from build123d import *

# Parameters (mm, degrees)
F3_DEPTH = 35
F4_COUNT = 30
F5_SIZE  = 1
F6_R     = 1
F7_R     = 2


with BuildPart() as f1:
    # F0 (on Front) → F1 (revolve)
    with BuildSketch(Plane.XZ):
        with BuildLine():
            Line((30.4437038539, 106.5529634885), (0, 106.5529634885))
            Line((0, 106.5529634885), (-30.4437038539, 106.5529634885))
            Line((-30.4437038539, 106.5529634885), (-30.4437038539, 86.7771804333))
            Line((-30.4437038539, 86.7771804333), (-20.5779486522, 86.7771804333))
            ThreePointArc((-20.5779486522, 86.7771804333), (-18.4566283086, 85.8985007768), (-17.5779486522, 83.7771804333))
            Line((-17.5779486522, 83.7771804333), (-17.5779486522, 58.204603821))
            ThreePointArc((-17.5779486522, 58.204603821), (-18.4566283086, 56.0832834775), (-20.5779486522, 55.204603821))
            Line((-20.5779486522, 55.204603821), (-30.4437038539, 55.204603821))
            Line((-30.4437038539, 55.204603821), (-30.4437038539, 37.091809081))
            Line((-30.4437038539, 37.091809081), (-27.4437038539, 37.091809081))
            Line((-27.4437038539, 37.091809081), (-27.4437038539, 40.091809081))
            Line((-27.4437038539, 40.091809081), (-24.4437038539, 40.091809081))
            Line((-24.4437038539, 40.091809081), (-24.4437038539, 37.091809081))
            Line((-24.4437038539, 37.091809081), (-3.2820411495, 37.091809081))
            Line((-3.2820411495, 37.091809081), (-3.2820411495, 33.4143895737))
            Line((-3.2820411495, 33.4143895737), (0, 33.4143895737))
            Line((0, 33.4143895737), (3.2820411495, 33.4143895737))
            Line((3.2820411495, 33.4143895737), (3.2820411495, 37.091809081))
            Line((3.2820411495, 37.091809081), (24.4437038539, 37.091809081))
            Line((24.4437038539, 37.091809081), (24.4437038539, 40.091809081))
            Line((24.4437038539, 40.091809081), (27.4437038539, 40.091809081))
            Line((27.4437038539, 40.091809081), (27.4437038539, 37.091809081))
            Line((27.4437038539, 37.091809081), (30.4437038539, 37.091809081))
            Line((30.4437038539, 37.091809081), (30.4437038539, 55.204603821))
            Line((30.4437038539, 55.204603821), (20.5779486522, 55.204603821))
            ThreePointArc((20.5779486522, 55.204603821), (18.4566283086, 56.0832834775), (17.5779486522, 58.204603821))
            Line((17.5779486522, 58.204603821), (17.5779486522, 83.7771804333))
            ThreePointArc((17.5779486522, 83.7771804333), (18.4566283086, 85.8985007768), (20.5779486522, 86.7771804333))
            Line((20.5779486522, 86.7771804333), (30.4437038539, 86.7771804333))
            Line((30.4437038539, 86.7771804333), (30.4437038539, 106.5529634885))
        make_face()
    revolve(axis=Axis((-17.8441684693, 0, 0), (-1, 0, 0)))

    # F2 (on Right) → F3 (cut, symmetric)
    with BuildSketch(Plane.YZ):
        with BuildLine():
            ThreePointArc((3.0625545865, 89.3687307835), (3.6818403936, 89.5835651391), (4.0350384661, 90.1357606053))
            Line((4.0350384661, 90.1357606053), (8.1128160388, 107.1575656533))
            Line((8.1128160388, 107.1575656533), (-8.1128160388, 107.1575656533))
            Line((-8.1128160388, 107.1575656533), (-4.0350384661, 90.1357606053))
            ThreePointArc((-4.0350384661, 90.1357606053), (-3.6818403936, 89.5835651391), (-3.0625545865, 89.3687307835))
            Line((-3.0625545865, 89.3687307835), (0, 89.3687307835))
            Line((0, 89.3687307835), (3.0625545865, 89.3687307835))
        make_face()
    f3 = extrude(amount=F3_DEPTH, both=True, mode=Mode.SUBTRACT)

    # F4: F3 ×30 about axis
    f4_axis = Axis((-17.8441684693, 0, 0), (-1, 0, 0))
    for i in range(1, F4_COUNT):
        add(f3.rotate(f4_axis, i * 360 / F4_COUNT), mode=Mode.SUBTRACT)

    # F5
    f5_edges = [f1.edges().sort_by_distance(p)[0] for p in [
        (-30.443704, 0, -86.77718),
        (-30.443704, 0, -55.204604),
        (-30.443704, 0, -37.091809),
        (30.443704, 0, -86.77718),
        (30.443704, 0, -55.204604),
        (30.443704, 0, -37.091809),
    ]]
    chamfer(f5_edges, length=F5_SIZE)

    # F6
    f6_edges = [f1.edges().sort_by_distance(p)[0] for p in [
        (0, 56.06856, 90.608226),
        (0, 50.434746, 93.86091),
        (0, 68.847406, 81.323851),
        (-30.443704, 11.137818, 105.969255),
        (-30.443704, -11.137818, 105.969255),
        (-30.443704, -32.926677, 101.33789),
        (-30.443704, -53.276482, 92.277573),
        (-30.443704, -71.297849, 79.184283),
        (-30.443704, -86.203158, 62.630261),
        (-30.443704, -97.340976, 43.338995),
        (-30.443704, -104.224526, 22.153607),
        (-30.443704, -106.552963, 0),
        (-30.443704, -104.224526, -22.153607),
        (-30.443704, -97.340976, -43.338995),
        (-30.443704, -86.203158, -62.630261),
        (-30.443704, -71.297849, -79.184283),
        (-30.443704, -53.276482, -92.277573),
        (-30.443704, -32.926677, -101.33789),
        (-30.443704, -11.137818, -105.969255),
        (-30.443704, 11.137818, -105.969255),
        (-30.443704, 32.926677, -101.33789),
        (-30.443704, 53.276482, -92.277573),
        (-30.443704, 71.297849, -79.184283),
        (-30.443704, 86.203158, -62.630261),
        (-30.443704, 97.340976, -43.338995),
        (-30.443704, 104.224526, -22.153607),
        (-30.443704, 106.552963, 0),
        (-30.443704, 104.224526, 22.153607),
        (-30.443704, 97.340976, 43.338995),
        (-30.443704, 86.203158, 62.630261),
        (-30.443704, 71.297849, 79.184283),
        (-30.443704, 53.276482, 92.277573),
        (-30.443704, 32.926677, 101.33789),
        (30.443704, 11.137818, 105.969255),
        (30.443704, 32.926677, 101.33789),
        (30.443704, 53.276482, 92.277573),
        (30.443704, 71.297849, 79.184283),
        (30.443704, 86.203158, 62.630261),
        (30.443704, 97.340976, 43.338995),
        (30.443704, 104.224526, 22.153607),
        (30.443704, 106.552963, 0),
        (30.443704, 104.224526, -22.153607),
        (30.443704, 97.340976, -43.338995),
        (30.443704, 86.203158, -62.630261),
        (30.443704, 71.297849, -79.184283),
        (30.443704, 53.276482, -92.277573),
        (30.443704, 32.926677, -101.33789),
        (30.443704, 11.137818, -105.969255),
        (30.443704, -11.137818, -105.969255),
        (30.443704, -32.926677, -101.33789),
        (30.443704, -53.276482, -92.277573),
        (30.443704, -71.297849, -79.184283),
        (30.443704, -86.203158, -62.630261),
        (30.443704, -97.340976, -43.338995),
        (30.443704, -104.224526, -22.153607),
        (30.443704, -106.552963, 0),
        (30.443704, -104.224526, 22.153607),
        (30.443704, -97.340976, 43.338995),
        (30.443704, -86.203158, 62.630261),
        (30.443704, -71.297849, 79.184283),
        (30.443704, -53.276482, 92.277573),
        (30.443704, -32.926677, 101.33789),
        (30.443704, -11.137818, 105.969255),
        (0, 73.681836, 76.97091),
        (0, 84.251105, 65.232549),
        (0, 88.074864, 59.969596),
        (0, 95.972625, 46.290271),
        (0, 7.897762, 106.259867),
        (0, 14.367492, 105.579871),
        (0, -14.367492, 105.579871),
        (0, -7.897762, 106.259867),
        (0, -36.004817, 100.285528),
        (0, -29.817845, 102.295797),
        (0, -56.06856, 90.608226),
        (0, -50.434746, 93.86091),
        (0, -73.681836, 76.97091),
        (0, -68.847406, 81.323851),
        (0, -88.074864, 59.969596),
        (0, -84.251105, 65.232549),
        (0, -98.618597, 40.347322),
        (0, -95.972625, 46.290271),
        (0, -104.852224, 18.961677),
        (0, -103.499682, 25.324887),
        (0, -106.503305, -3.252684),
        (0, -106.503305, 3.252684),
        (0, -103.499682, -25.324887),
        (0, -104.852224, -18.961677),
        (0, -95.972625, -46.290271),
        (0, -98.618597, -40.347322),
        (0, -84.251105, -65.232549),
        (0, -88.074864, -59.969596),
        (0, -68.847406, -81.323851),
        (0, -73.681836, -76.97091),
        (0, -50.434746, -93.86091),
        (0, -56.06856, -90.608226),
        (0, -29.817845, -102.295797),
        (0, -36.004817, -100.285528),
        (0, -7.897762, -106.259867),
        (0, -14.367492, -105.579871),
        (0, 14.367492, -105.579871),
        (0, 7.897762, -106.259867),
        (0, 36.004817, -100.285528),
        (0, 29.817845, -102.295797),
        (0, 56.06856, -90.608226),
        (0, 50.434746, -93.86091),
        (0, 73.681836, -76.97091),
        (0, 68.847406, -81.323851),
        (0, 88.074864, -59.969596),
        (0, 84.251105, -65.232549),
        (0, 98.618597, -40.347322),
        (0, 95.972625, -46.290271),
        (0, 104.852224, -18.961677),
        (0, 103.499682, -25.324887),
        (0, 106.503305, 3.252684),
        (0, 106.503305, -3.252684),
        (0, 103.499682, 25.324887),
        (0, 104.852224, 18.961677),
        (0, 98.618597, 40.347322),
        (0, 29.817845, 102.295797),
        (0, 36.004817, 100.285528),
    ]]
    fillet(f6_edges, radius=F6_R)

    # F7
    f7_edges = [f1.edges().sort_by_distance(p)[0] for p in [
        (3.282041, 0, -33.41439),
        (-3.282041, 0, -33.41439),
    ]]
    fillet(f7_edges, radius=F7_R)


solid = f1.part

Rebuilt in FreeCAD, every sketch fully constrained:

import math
import FreeCAD as App
import Part
import Sketcher
from FreeCAD import Vector
Q = App.Units.Quantity


def edges_at(feature, points):
    """Names of the edges that pass closest to the given points."""
    edges = feature.Shape.Edges
    near = lambda p: min(range(len(edges)), key=lambda i: edges[i].distToShape(Part.Vertex(*p))[0])
    return sorted({f"Edge{near(p) + 1}" for p in points})

doc = App.newDocument("Part")
body = doc.addObject("PartDesign::Body", "Body")

# Sketch on XZ plane
sketch1 = body.newObject("Sketcher::SketchObject", "Sketch")
sketch1.AttachmentSupport = (doc.getObject("XZ_Plane"), [""])
sketch1.MapMode = "FlatFace"
sketch1.addGeometry([
    Part.LineSegment(Vector(30.4, 106.6, 0), Vector(-30.4, 106.6, 0)),  # 0
    Part.LineSegment(Vector(-30.4, 106.6, 0), Vector(-30.4, 86.8, 0)),  # 1
    Part.LineSegment(Vector(-30.4, 86.8, 0), Vector(-20.6, 86.8, 0)),  # 2
    Part.ArcOfCircle(Part.Circle(Vector(-20.6, 83.8, 0), Vector(0, 0, 1), 3), math.radians(0), math.radians(90)),  # 3
    Part.LineSegment(Vector(-17.6, 83.8, 0), Vector(-17.6, 58.2, 0)),  # 4
    Part.ArcOfCircle(Part.Circle(Vector(-20.6, 58.2, 0), Vector(0, 0, 1), 3), math.radians(-90), math.radians(0)),  # 5
    Part.LineSegment(Vector(-20.6, 55.2, 0), Vector(-30.4, 55.2, 0)),  # 6
    Part.LineSegment(Vector(-30.4, 55.2, 0), Vector(-30.4, 37.1, 0)),  # 7
    Part.LineSegment(Vector(-30.4, 37.1, 0), Vector(-27.4, 37.1, 0)),  # 8
    Part.LineSegment(Vector(-27.4, 37.1, 0), Vector(-27.4, 40.1, 0)),  # 9
    Part.LineSegment(Vector(-27.4, 40.1, 0), Vector(-24.4, 40.1, 0)),  # 10
    Part.LineSegment(Vector(-24.4, 40.1, 0), Vector(-24.4, 37.1, 0)),  # 11
    Part.LineSegment(Vector(-24.4, 37.1, 0), Vector(-3.3, 37.1, 0)),  # 12
    Part.LineSegment(Vector(-3.3, 37.1, 0), Vector(-3.3, 33.4, 0)),  # 13
    Part.LineSegment(Vector(-3.3, 33.4, 0), Vector(3.3, 33.4, 0)),  # 14
    Part.LineSegment(Vector(3.3, 33.4, 0), Vector(3.3, 37.1, 0)),  # 15
    Part.LineSegment(Vector(3.3, 37.1, 0), Vector(24.4, 37.1, 0)),  # 16
    Part.LineSegment(Vector(24.4, 37.1, 0), Vector(24.4, 40.1, 0)),  # 17
    Part.LineSegment(Vector(24.4, 40.1, 0), Vector(27.4, 40.1, 0)),  # 18
    Part.LineSegment(Vector(27.4, 40.1, 0), Vector(27.4, 37.1, 0)),  # 19
    Part.LineSegment(Vector(27.4, 37.1, 0), Vector(30.4, 37.1, 0)),  # 20
    Part.LineSegment(Vector(30.4, 37.1, 0), Vector(30.4, 55.2, 0)),  # 21
    Part.LineSegment(Vector(30.4, 55.2, 0), Vector(20.6, 55.2, 0)),  # 22
    Part.ArcOfCircle(Part.Circle(Vector(20.6, 58.2, 0), Vector(0, 0, 1), 3), math.radians(180), math.radians(270)),  # 23
    Part.LineSegment(Vector(17.6, 58.2, 0), Vector(17.6, 83.8, 0)),  # 24
    Part.ArcOfCircle(Part.Circle(Vector(20.6, 83.8, 0), Vector(0, 0, 1), 3), math.radians(90), math.radians(180)),  # 25
    Part.LineSegment(Vector(20.6, 86.8, 0), Vector(30.4, 86.8, 0)),  # 26
    Part.LineSegment(Vector(30.4, 86.8, 0), Vector(30.4, 106.6, 0)),  # 27
], False)
sketch1.addConstraint([
    Sketcher.Constraint("Coincident", 0, 2, 1, 1),
    Sketcher.Constraint("Coincident", 1, 2, 2, 1),
    Sketcher.Constraint("Tangent", 2, 2, 3, 2),
    Sketcher.Constraint("Tangent", 3, 1, 4, 1),
    Sketcher.Constraint("Tangent", 4, 2, 5, 2),
    Sketcher.Constraint("Tangent", 5, 1, 6, 1),
    Sketcher.Constraint("Coincident", 6, 2, 7, 1),
    Sketcher.Constraint("Coincident", 7, 2, 8, 1),
    Sketcher.Constraint("Coincident", 8, 2, 9, 1),
    Sketcher.Constraint("Coincident", 9, 2, 10, 1),
    Sketcher.Constraint("Coincident", 10, 2, 11, 1),
    Sketcher.Constraint("Coincident", 11, 2, 12, 1),
    Sketcher.Constraint("Coincident", 12, 2, 13, 1),
    Sketcher.Constraint("Coincident", 13, 2, 14, 1),
    Sketcher.Constraint("Coincident", 14, 2, 15, 1),
    Sketcher.Constraint("Coincident", 15, 2, 16, 1),
    Sketcher.Constraint("Coincident", 16, 2, 17, 1),
    Sketcher.Constraint("Coincident", 17, 2, 18, 1),
    Sketcher.Constraint("Coincident", 18, 2, 19, 1),
    Sketcher.Constraint("Coincident", 19, 2, 20, 1),
    Sketcher.Constraint("Coincident", 20, 2, 21, 1),
    Sketcher.Constraint("Coincident", 21, 2, 22, 1),
    Sketcher.Constraint("Tangent", 22, 2, 23, 2),
    Sketcher.Constraint("Tangent", 23, 1, 24, 1),
    Sketcher.Constraint("Tangent", 24, 2, 25, 2),
    Sketcher.Constraint("Tangent", 25, 1, 26, 1),
    Sketcher.Constraint("Coincident", 26, 2, 27, 1),
    Sketcher.Constraint("Coincident", 27, 2, 0, 1),
    Sketcher.Constraint("Horizontal", 0),
    Sketcher.Constraint("Vertical", 1),
    Sketcher.Constraint("Horizontal", 2),
    Sketcher.Constraint("Vertical", 4),
    Sketcher.Constraint("Horizontal", 6),
    Sketcher.Constraint("Vertical", 7),
    Sketcher.Constraint("Horizontal", 8),
    Sketcher.Constraint("Vertical", 9),
    Sketcher.Constraint("Horizontal", 10),
    Sketcher.Constraint("Vertical", 11),
    Sketcher.Constraint("Horizontal", 12),
    Sketcher.Constraint("Vertical", 13),
    Sketcher.Constraint("Horizontal", 14),
    Sketcher.Constraint("Vertical", 15),
    Sketcher.Constraint("Horizontal", 16),
    Sketcher.Constraint("Vertical", 17),
    Sketcher.Constraint("Horizontal", 18),
    Sketcher.Constraint("Vertical", 19),
    Sketcher.Constraint("Horizontal", 20),
    Sketcher.Constraint("Vertical", 21),
    Sketcher.Constraint("Horizontal", 22),
    Sketcher.Constraint("Vertical", 24),
    Sketcher.Constraint("Horizontal", 26),
    Sketcher.Constraint("Vertical", 27),
    Sketcher.Constraint("Equal", 3, 5),
    Sketcher.Constraint("Equal", 5, 23),
    Sketcher.Constraint("Equal", 23, 25),
    Sketcher.Constraint("Symmetric", 5, 3, 23, 3, -2),
    Sketcher.Constraint("Symmetric", 12, 2, 15, 2, -2),
    Sketcher.Constraint("Symmetric", 10, 2, 17, 2, -2),
    Sketcher.Constraint("Symmetric", 8, 2, 19, 2, -2),
    Sketcher.Constraint("Symmetric", 1, 2, 26, 2, -2),
    Sketcher.Constraint("Horizontal", 8, 2, 11, 2),
    Sketcher.Constraint("Vertical", 1, 2, 6, 2),
    Sketcher.Constraint("Vertical", 21, 2, 26, 2),
    Sketcher.Constraint("Equal", 8, 10),
    Sketcher.Constraint("Equal", 20, 9),
    Sketcher.Constraint("Radius", 3, Q("3 mm")),
    Sketcher.Constraint("DistanceX", 8, 1, 8, 2, Q("3 mm")),
    Sketcher.Constraint("DistanceY", 13, 2, 13, 1, Q("3.67742 mm")),
    Sketcher.Constraint("DistanceX", 0, 2, 0, 1, Q("60.887408 mm")),
    Sketcher.Constraint("DistanceX", 2, 1, 2, 2, Q("9.865755 mm")),
    Sketcher.Constraint("DistanceX", 12, 1, 12, 2, Q("21.161663 mm")),
    Sketcher.Constraint("DistanceY", 1, 2, 1, 1, Q("19.775783 mm")),
    Sketcher.Constraint("DistanceY", 4, 2, 4, 1, Q("25.572577 mm")),
    Sketcher.Constraint("DistanceY", 7, 2, 7, 1, Q("18.112795 mm")),
    Sketcher.Constraint("DistanceY", -1, 1, 3, 3, Q("83.77718 mm")),
])
revolution = body.newObject("PartDesign::Revolution", "Revolution")
revolution.Profile = sketch1
revolution.ReferenceAxis = (sketch1, ["H_Axis"])
revolution.Angle = 360

# Sketch on YZ plane
sketch2 = body.newObject("Sketcher::SketchObject", "Sketch001")
sketch2.AttachmentSupport = (doc.getObject("YZ_Plane"), [""])
sketch2.MapMode = "FlatFace"
sketch2.addGeometry([
    Part.ArcOfCircle(Part.Circle(Vector(3.1, 90.4, 0), Vector(0, 0, 1), 1), math.radians(-90), math.radians(-13)),  # 0
    Part.LineSegment(Vector(4, 90.1, 0), Vector(8.1, 107.2, 0)),  # 1
    Part.LineSegment(Vector(8.1, 107.2, 0), Vector(-8.1, 107.2, 0)),  # 2
    Part.LineSegment(Vector(-8.1, 107.2, 0), Vector(-4, 90.1, 0)),  # 3
    Part.ArcOfCircle(Part.Circle(Vector(-3.1, 90.4, 0), Vector(0, 0, 1), 1), math.radians(-167), math.radians(-90)),  # 4
    Part.LineSegment(Vector(-3.1, 89.4, 0), Vector(3.1, 89.4, 0)),  # 5
], False)
sketch2.addConstraint([
    Sketcher.Constraint("Tangent", 0, 2, 1, 1),
    Sketcher.Constraint("Coincident", 1, 2, 2, 1),
    Sketcher.Constraint("Coincident", 2, 2, 3, 1),
    Sketcher.Constraint("Tangent", 3, 2, 4, 1),
    Sketcher.Constraint("Tangent", 4, 2, 5, 1),
    Sketcher.Constraint("Tangent", 5, 2, 0, 1),
    Sketcher.Constraint("Horizontal", 2),
    Sketcher.Constraint("Horizontal", 5),
    Sketcher.Constraint("Equal", 0, 4),
    Sketcher.Constraint("Symmetric", 0, 2, 3, 2, -2),
    Sketcher.Constraint("Radius", 0, Q("1 mm")),
    Sketcher.Constraint("DistanceX", 5, 1, 5, 2, Q("6.125109 mm")),
    Sketcher.Constraint("Distance", 1, Q("17.503432 mm")),
    Sketcher.Constraint("DistanceX", 2, 2, 2, 1, Q("16.225632 mm")),
    Sketcher.Constraint("DistanceY", -1, 1, 0, 3, Q("90.368731 mm")),
])
pocket1 = body.newObject("PartDesign::Pocket", "Pocket")
pocket1.Profile = sketch2
pocket1.Length = 70
pocket1.Midplane = True
doc.recompute()

polarpattern = body.newObject("PartDesign::PolarPattern", "PolarPattern")
polarpattern.Originals = [pocket1]
polarpattern.Axis = (doc.getObject("X_Axis"), [""])
polarpattern.Angle = 360
polarpattern.Occurrences = 30
body.Tip = polarpattern
doc.recompute()

chamfer = body.newObject("PartDesign::Chamfer", "Chamfer")
chamfer.Base = (polarpattern, edges_at(polarpattern, [
    (-30.444, 0, -86.777),
    (-30.444, 0, -55.205),
    (-30.444, 0, -37.092),
    (30.444, 0, -86.777),
    (30.444, 0, -55.205),
    (30.444, 0, -37.092),
]))
chamfer.Size = 1
doc.recompute()

fillet = body.newObject("PartDesign::Fillet", "Fillet")
fillet.Base = (chamfer, edges_at(chamfer, [
    (0, 56.069, 90.608),
    (0, 50.435, 93.861),
    (0, 68.847, 81.324),
    (-30.444, 11.138, 105.969),
    (-30.444, -11.138, 105.969),
    (-30.444, -32.927, 101.338),
    (-30.444, -53.276, 92.278),
    (-30.444, -71.298, 79.184),
    (-30.444, -86.203, 62.63),
    (-30.444, -97.341, 43.339),
    (-30.444, -104.225, 22.154),
    (-30.444, -106.553, 0),
    (-30.444, -104.225, -22.154),
    (-30.444, -97.341, -43.339),
    (-30.444, -86.203, -62.63),
    (-30.444, -71.298, -79.184),
    (-30.444, -53.276, -92.278),
    (-30.444, -32.927, -101.338),
    (-30.444, -11.138, -105.969),
    (-30.444, 11.138, -105.969),
    (-30.444, 32.927, -101.338),
    (-30.444, 53.276, -92.278),
    (-30.444, 71.298, -79.184),
    (-30.444, 86.203, -62.63),
    (-30.444, 97.341, -43.339),
    (-30.444, 104.225, -22.154),
    (-30.444, 106.553, 0),
    (-30.444, 104.225, 22.154),
    (-30.444, 97.341, 43.339),
    (-30.444, 86.203, 62.63),
    (-30.444, 71.298, 79.184),
    (-30.444, 53.276, 92.278),
    (-30.444, 32.927, 101.338),
    (30.444, 11.138, 105.969),
    (30.444, 32.927, 101.338),
    (30.444, 53.276, 92.278),
    (30.444, 71.298, 79.184),
    (30.444, 86.203, 62.63),
    (30.444, 97.341, 43.339),
    (30.444, 104.225, 22.154),
    (30.444, 106.553, 0),
    (30.444, 104.225, -22.154),
    (30.444, 97.341, -43.339),
    (30.444, 86.203, -62.63),
    (30.444, 71.298, -79.184),
    (30.444, 53.276, -92.278),
    (30.444, 32.927, -101.338),
    (30.444, 11.138, -105.969),
    (30.444, -11.138, -105.969),
    (30.444, -32.927, -101.338),
    (30.444, -53.276, -92.278),
    (30.444, -71.298, -79.184),
    (30.444, -86.203, -62.63),
    (30.444, -97.341, -43.339),
    (30.444, -104.225, -22.154),
    (30.444, -106.553, 0),
    (30.444, -104.225, 22.154),
    (30.444, -97.341, 43.339),
    (30.444, -86.203, 62.63),
    (30.444, -71.298, 79.184),
    (30.444, -53.276, 92.278),
    (30.444, -32.927, 101.338),
    (30.444, -11.138, 105.969),
    (0, 73.682, 76.971),
    (0, 84.251, 65.233),
    (0, 88.075, 59.97),
    (0, 95.973, 46.29),
    (0, 7.898, 106.26),
    (0, 14.367, 105.58),
    (0, -14.367, 105.58),
    (0, -7.898, 106.26),
    (0, -36.005, 100.286),
    (0, -29.818, 102.296),
    (0, -56.069, 90.608),
    (0, -50.435, 93.861),
    (0, -73.682, 76.971),
    (0, -68.847, 81.324),
    (0, -88.075, 59.97),
    (0, -84.251, 65.233),
    (0, -98.619, 40.347),
    (0, -95.973, 46.29),
    (0, -104.852, 18.962),
    (0, -103.5, 25.325),
    (0, -106.503, -3.253),
    (0, -106.503, 3.253),
    (0, -103.5, -25.325),
    (0, -104.852, -18.962),
    (0, -95.973, -46.29),
    (0, -98.619, -40.347),
    (0, -84.251, -65.233),
    (0, -88.075, -59.97),
    (0, -68.847, -81.324),
    (0, -73.682, -76.971),
    (0, -50.435, -93.861),
    (0, -56.069, -90.608),
    (0, -29.818, -102.296),
    (0, -36.005, -100.286),
    (0, -7.898, -106.26),
    (0, -14.367, -105.58),
    (0, 14.367, -105.58),
    (0, 7.898, -106.26),
    (0, 36.005, -100.286),
    (0, 29.818, -102.296),
    (0, 56.069, -90.608),
    (0, 50.435, -93.861),
    (0, 73.682, -76.971),
    (0, 68.847, -81.324),
    (0, 88.075, -59.97),
    (0, 84.251, -65.233),
    (0, 98.619, -40.347),
    (0, 95.973, -46.29),
    (0, 104.852, -18.962),
    (0, 103.5, -25.325),
    (0, 106.503, 3.253),
    (0, 106.503, -3.253),
    (0, 103.5, 25.325),
    (0, 104.852, 18.962),
    (0, 98.619, 40.347),
    (0, 29.818, 102.296),
    (0, 36.005, 100.286),
]))
fillet.Radius = 1
doc.recompute()

fillet2 = body.newObject("PartDesign::Fillet", "Fillet001")
fillet2.Base = (fillet, edges_at(fillet, [(3.282, 0, -33.414), (-3.282, 0, -33.414)]))
fillet2.Radius = 2

doc.recompute()
